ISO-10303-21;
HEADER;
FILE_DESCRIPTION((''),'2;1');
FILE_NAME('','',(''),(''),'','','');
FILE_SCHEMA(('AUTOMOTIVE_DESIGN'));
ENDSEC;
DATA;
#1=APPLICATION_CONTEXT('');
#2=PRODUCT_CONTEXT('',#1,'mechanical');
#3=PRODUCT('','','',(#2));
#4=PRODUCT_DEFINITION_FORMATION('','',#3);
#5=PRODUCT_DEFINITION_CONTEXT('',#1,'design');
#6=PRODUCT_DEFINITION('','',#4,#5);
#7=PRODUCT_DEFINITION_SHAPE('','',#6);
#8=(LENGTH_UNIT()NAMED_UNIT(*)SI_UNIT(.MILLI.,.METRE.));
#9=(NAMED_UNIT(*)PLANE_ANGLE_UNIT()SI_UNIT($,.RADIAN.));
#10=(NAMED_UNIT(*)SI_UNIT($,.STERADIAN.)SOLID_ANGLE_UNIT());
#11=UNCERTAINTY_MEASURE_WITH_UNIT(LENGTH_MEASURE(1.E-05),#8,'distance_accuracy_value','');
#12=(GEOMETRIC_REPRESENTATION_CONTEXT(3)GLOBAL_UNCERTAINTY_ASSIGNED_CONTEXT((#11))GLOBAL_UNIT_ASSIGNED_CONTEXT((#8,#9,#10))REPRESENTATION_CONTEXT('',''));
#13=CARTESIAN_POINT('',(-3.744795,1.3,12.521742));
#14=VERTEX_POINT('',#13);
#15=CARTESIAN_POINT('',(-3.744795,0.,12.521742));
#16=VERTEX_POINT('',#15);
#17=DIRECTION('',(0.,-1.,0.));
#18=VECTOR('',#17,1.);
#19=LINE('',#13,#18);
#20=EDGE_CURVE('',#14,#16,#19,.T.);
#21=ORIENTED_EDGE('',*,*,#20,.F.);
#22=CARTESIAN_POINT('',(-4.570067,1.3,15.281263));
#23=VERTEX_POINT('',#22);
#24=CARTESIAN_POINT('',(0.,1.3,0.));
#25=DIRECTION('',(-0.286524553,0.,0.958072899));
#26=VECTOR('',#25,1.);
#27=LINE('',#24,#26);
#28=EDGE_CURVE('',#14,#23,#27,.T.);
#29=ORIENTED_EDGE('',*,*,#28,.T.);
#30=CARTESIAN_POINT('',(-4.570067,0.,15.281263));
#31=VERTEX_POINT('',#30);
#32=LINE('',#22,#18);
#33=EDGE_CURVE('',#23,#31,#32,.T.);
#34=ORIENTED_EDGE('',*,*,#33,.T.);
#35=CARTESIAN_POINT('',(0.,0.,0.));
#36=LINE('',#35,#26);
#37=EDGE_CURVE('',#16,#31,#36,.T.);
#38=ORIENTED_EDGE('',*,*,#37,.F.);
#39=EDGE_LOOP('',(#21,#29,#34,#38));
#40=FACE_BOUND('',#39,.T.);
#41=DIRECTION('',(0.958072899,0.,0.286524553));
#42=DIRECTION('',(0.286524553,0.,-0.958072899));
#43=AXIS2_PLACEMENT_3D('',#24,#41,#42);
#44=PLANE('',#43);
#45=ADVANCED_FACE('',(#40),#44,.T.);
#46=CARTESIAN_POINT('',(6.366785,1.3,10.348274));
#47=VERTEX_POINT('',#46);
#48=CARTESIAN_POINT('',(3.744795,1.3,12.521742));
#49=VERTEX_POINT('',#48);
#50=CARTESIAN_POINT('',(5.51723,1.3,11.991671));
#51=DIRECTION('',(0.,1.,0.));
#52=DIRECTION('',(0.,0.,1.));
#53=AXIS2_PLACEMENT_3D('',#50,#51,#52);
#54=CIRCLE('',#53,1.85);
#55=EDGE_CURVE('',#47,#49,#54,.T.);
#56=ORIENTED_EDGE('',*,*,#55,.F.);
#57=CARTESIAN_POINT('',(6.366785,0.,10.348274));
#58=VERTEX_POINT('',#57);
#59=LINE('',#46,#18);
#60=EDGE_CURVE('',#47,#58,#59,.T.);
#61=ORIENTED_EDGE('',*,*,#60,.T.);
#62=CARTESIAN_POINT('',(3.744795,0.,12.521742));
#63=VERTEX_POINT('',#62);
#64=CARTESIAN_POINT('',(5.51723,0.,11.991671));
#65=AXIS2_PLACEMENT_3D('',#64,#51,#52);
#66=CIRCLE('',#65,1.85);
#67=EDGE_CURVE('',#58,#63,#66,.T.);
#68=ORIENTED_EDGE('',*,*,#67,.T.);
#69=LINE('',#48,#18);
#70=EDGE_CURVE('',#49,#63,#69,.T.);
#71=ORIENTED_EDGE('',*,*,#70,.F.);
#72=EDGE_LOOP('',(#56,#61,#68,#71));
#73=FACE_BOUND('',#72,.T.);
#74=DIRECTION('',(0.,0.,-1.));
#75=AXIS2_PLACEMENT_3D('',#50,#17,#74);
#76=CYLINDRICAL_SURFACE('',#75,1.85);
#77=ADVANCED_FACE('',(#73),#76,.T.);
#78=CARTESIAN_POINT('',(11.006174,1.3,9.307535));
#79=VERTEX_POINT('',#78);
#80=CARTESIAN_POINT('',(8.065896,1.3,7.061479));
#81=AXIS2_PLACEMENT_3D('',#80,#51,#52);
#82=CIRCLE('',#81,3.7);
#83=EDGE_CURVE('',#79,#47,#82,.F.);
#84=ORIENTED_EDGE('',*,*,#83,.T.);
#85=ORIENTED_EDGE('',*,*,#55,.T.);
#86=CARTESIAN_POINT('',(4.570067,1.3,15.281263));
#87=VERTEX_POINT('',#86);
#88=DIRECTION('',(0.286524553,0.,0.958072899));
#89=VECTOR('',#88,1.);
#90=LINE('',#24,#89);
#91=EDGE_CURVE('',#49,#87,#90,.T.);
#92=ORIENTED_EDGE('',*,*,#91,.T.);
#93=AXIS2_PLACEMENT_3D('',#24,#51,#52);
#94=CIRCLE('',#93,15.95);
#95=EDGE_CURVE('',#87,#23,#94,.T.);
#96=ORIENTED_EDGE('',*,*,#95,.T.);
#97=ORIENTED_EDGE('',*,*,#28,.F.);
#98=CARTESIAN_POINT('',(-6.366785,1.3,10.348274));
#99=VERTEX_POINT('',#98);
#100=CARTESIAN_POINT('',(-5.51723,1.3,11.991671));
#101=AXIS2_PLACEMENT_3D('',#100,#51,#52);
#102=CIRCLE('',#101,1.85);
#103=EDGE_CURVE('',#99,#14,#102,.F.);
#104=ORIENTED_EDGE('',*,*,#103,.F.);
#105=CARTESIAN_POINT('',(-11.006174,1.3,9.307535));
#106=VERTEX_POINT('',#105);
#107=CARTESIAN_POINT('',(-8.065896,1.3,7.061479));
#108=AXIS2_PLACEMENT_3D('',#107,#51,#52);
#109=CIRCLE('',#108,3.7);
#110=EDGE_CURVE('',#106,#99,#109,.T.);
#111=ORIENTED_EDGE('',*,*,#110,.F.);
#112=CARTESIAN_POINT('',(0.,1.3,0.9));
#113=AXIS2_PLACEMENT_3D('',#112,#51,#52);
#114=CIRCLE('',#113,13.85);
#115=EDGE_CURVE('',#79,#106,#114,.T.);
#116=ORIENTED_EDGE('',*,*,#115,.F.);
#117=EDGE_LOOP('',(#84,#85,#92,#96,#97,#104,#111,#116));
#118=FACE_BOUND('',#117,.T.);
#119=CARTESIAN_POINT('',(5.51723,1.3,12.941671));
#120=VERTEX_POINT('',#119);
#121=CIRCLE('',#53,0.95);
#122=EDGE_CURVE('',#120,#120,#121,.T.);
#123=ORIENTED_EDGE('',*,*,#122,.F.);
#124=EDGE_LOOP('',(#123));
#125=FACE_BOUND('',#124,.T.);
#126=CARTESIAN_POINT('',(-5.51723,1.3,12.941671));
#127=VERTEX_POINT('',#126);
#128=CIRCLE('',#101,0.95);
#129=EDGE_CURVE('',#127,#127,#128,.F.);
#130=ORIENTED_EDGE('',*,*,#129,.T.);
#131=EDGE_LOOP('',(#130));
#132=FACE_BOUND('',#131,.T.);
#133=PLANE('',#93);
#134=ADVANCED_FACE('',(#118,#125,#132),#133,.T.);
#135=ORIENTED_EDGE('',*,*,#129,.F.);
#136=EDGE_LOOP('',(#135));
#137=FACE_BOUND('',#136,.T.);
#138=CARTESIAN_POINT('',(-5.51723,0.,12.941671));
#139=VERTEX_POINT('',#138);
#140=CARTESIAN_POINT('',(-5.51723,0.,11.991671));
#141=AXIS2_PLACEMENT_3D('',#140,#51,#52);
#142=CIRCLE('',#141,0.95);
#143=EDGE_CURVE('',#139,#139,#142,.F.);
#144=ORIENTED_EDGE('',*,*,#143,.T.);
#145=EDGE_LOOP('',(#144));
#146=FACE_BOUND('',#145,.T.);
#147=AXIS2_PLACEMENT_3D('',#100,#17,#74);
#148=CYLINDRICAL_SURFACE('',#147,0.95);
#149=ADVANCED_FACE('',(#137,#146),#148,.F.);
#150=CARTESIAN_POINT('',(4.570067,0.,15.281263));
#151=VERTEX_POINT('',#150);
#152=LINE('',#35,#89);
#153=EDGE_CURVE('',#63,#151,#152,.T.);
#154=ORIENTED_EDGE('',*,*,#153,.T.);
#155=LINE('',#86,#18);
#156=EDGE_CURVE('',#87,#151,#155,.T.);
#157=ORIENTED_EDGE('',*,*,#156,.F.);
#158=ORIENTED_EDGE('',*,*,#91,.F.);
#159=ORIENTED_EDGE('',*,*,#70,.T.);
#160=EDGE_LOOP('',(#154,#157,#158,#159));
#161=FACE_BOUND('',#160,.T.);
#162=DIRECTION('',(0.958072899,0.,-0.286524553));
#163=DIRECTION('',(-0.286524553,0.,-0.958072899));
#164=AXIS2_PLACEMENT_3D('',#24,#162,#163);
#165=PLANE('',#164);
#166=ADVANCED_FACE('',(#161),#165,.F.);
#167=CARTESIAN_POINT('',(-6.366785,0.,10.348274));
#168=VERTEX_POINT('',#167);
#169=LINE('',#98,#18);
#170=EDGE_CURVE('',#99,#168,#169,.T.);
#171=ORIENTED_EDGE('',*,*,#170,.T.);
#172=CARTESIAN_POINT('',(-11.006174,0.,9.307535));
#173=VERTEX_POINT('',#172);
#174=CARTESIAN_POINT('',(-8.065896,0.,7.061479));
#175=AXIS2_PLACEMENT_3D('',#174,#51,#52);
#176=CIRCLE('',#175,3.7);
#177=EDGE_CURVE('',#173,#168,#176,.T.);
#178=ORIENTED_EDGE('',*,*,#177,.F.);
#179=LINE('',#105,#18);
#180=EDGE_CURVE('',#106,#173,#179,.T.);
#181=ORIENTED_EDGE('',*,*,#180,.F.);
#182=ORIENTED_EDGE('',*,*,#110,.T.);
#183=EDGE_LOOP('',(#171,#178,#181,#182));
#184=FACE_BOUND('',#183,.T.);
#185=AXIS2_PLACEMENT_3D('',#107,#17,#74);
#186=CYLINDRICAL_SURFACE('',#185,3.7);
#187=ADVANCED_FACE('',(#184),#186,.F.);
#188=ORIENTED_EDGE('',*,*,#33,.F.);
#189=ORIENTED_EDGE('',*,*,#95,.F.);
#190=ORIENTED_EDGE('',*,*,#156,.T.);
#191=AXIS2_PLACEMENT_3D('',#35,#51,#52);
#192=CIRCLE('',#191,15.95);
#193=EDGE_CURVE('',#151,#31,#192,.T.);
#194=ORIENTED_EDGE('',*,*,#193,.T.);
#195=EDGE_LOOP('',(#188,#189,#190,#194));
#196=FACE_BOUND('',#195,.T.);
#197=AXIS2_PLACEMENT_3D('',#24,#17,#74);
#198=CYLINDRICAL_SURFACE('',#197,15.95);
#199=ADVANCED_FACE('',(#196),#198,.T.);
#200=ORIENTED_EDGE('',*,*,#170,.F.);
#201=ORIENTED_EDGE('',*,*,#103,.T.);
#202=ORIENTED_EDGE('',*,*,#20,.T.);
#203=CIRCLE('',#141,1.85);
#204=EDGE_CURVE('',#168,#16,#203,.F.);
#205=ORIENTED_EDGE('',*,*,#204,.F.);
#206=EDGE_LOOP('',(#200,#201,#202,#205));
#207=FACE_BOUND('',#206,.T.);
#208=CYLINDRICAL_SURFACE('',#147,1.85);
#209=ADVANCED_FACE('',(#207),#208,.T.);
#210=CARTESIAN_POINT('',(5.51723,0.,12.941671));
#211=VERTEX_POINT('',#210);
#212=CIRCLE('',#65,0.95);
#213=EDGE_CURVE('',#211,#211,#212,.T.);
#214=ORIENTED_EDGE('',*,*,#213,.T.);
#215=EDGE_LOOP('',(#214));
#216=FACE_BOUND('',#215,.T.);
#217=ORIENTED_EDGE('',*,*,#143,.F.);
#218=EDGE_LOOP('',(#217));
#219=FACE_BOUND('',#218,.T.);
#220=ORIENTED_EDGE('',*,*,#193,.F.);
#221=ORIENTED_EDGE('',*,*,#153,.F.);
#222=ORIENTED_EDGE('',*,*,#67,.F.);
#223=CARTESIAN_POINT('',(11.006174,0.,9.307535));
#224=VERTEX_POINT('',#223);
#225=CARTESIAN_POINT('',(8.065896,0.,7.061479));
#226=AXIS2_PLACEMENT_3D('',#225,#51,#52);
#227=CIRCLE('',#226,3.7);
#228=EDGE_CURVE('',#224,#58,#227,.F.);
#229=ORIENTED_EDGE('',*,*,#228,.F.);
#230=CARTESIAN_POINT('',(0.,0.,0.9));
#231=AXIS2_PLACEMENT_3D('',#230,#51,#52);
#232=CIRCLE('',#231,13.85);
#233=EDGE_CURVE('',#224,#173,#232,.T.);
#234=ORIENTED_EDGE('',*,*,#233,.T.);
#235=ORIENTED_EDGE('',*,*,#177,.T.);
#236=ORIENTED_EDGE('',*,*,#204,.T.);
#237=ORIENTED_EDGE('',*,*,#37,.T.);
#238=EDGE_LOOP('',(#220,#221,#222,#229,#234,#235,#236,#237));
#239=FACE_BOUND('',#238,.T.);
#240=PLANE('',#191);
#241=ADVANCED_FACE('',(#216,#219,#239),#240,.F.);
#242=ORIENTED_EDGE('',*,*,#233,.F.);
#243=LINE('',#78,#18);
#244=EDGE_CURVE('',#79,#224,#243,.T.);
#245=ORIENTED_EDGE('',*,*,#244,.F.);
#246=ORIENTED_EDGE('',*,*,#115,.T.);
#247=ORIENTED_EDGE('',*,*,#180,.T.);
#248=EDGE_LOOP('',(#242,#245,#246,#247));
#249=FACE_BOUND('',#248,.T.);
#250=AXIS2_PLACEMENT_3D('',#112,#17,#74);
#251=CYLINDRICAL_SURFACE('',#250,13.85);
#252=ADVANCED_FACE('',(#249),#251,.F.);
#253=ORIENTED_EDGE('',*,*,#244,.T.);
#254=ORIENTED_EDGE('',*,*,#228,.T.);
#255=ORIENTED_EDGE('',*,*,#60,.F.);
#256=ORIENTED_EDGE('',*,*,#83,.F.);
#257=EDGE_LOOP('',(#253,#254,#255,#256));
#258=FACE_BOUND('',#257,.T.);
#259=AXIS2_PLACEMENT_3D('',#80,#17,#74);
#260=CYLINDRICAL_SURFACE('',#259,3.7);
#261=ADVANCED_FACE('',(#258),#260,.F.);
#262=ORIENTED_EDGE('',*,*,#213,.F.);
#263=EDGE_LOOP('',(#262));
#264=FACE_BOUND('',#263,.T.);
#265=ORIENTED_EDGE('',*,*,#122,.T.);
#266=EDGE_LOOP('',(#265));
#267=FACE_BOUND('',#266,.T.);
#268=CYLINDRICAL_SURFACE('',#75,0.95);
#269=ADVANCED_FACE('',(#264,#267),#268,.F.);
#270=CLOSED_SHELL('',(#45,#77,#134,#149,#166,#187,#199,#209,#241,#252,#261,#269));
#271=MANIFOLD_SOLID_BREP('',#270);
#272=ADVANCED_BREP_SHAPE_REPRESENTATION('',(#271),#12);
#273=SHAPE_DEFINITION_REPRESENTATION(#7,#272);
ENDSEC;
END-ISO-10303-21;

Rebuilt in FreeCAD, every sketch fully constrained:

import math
import FreeCAD as App
import Part
import Sketcher
from FreeCAD import Vector
Q = App.Units.Quantity

doc = App.newDocument("Part")
params = doc.addObject("Spreadsheet::Sheet", "Params")
for row, (alias, value) in enumerate([
    ("sketch1_diameter", "1.9 mm"),
    ("sketch1_radius", "3.7 mm"),
    ("sketch1_radius2", "1.85 mm"),
    ("sketch1_radius3", "15.95 mm"),
    ("sketch1_radius4", "13.85 mm"),
    ("pad1_length", "1.3 mm"),
], start=1):
    params.set(f"A{row}", alias)
    params.set(f"B{row}", "=" + value)
    params.setAlias(f"B{row}", alias)

body = doc.addObject("PartDesign::Body", "Body")

# Sketch on XZ plane
sketch1 = doc.addObject("Sketcher::SketchObject", "Sketch")
body.addObject(sketch1)
sketch1.AttachmentSupport = (doc.XZ_Plane, [""])
sketch1.MapMode = "FlatFace"
sketch1.addGeometry([
    Part.ArcOfCircle(Part.Circle(Vector(5.5, 12, 0), Vector(0, 0, 1), 1.9), math.radians(163), math.radians(297)),  # 0
    Part.LineSegment(Vector(3.7, 12.5, 0), Vector(4.6, 15.3, 0)),  # 1
    Part.ArcOfCircle(Part.Circle(Vector(0, 0, 0), Vector(0, 0, 1), 15.9), math.radians(107), math.radians(433)),  # 2
    Part.LineSegment(Vector(-4.6, 15.3, 0), Vector(-3.7, 12.5, 0)),  # 3
    Part.ArcOfCircle(Part.Circle(Vector(-5.5, 12, 0), Vector(0, 0, 1), 1.9), math.radians(-117), math.radians(17)),  # 4
    Part.ArcOfCircle(Part.Circle(Vector(-8.1, 7.1, 0), Vector(0, 0, 1), 3.7), math.radians(63), math.radians(143)),  # 5
    Part.ArcOfCircle(Part.Circle(Vector(0, 0.9, 0), Vector(0, 0, 1), 13.8), math.radians(143), math.radians(397)),  # 6
    Part.ArcOfCircle(Part.Circle(Vector(8.1, 7.1, 0), Vector(0, 0, 1), 3.7), math.radians(37), math.radians(117)),  # 7
    Part.Circle(Vector(-5.5, 12, 0), Vector(0, 0, 1), 0.9),  # 8
    Part.Circle(Vector(5.5, 12, 0), Vector(0, 0, 1), 0.9),  # 9
], False)
sketch1.addConstraint([
    Sketcher.Constraint("Tangent", 0, 1, 1, 1),
    Sketcher.Constraint("Coincident", 1, 2, 2, 2),
    Sketcher.Constraint("Coincident", 2, 1, 3, 1),
    Sketcher.Constraint("Tangent", 3, 2, 4, 2),
    Sketcher.Constraint("Tangent", 4, 1, 5, 1),
    Sketcher.Constraint("Tangent", 5, 2, 6, 1),
    Sketcher.Constraint("Tangent", 6, 2, 7, 1),
    Sketcher.Constraint("Tangent", 7, 2, 0, 2),
    Sketcher.Constraint("Coincident", 2, 3, -1, 1),
    Sketcher.Constraint("Coincident", 8, 3, 4, 3),
    Sketcher.Constraint("Coincident", 9, 3, 0, 3),
    Sketcher.Constraint("Equal", 0, 4),
    Sketcher.Constraint("Equal", 5, 7),
    Sketcher.Constraint("Equal", 8, 9),
    Sketcher.Constraint("Symmetric", 0, 3, 4, 3, -2),
    Sketcher.Constraint("PointOnObject", 6, 3, -2),
    Sketcher.Constraint("Horizontal", 1, 2, 2, 1),
    Sketcher.Constraint("Diameter", 8, Q("1.9 mm")),
    Sketcher.Constraint("Radius", 5, Q("3.7 mm")),
    Sketcher.Constraint("Radius", 0, Q("1.85 mm")),
    Sketcher.Constraint("Radius", 2, Q("15.95 mm")),
    Sketcher.Constraint("Radius", 6, Q("13.85 mm")),
    Sketcher.Constraint("DistanceY", -1, 1, 6, 3, Q("0.9 mm")),
    Sketcher.Constraint("Angle", 1, Q("73.35 deg")),
    Sketcher.Constraint("DistanceX", 0, 1, 7, 3, Q("4.321101 mm")),
    Sketcher.Constraint("DistanceX", -1, 1, 0, 3, Q("5.51723 mm")),
])
sketch1.setExpression("Constraints[17]", "Params.sketch1_diameter")
sketch1.setExpression("Constraints[18]", "Params.sketch1_radius")
sketch1.setExpression("Constraints[19]", "Params.sketch1_radius2")
sketch1.setExpression("Constraints[20]", "Params.sketch1_radius3")
sketch1.setExpression("Constraints[21]", "Params.sketch1_radius4")
pad1 = doc.addObject("PartDesign::Pad", "Pad")
body.addObject(pad1)
pad1.Profile = sketch1
pad1.setExpression("Length", "Params.pad1_length")
pad1.Reversed = True

doc.recompute()
